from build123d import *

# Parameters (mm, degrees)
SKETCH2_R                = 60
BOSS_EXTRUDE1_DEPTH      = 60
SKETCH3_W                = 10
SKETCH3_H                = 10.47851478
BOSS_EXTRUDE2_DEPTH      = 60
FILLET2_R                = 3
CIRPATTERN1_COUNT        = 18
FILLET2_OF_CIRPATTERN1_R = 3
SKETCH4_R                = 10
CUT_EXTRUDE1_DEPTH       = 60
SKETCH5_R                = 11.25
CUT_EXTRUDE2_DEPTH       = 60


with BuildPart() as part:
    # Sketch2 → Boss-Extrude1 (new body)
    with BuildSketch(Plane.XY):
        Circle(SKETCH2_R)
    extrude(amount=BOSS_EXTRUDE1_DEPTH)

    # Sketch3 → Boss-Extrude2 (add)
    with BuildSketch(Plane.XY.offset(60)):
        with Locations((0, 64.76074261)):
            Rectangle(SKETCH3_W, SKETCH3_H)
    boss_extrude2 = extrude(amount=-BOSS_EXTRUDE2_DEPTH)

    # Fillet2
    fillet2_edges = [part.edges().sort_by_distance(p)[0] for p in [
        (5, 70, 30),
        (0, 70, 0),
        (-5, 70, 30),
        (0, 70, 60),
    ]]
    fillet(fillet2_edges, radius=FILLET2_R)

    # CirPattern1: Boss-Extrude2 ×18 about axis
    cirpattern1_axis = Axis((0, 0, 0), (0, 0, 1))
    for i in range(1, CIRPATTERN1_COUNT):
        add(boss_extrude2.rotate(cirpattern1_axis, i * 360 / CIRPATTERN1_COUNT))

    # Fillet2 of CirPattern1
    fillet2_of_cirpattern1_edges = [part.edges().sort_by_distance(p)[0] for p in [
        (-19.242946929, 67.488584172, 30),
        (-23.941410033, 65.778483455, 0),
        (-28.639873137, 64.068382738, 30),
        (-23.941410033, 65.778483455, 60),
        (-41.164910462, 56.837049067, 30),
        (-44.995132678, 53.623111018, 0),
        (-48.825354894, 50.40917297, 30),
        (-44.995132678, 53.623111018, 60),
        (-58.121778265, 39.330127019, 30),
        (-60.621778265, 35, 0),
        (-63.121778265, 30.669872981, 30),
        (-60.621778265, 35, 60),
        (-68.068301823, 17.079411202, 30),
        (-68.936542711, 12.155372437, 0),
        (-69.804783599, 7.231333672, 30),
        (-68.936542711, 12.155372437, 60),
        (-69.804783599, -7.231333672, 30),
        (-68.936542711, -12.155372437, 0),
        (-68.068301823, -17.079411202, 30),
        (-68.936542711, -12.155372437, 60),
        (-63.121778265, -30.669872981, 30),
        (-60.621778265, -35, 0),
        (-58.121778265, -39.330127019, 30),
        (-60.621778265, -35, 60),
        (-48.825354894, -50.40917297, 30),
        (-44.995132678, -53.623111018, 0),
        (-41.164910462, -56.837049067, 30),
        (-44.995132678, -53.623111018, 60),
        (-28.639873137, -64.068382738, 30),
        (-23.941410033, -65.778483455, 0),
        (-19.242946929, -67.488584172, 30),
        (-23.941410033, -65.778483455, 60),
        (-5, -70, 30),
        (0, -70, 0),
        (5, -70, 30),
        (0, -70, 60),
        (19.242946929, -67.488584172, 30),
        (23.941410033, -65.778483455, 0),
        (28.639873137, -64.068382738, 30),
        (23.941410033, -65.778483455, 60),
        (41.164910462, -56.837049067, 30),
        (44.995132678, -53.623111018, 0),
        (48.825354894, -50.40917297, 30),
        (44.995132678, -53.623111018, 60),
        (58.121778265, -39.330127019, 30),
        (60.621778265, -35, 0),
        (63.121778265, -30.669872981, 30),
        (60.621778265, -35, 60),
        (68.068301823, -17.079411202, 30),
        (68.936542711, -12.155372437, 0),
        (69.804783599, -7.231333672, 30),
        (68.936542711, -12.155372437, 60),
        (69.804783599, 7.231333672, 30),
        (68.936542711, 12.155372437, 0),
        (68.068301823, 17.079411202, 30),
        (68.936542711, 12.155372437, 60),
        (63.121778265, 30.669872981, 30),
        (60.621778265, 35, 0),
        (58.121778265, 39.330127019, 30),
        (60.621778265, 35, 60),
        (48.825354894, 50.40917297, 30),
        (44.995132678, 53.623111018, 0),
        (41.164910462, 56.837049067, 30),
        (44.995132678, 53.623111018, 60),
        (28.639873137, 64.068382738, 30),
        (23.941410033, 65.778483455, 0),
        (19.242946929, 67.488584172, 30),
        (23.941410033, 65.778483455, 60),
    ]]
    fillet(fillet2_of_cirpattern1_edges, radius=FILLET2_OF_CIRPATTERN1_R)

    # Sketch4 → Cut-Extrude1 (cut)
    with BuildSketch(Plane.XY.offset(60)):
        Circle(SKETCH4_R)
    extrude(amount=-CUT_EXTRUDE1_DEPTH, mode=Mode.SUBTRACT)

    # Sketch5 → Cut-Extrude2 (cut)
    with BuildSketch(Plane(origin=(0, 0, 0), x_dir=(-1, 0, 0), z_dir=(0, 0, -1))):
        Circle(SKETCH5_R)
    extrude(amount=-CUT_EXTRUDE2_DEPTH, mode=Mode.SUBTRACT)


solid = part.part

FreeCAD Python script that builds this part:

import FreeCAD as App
import Part
import Sketcher

V = App.Vector
Q = App.Units.Quantity


def edges_at(feature, points):
    """Names of the edges that pass closest to the given points."""
    edges = feature.Shape.Edges
    near = lambda p: min(range(len(edges)), key=lambda i: edges[i].distToShape(Part.Vertex(*p))[0])
    return sorted({f"Edge{near(p) + 1}" for p in points})


def add_polygon(sketch, points):
    """Adds a closed chain of lines whose ends are joined by coincident constraints."""
    first, n = sketch.GeometryCount, len(points)
    for a, b in zip(points, points[1:] + points[:1]):
        sketch.addGeometry(Part.LineSegment(App.Vector(*a, 0), App.Vector(*b, 0)), False)
    for i in range(n):
        sketch.addConstraint(Sketcher.Constraint("Coincident", first + i, 2, first + (i + 1) % n, 1))

doc = App.newDocument("Part")
body = doc.addObject("PartDesign::Body", "Body")

sketch1 = body.newObject("Sketcher::SketchObject", "Sketch")
sketch1.AttachmentSupport = (doc.getObject("XY_Plane"), [""])
sketch1.MapMode = "FlatFace"
sketch1.addGeometry(Part.Circle(V(0, 0, 0), V(0, 0, 1), 60), False)
sketch1.addConstraint(Sketcher.Constraint("Coincident", 0, 3, -1, 1))
sketch1.addConstraint(Sketcher.Constraint("Diameter", 0, Q("120 mm")))
pad1 = body.newObject("PartDesign::Pad", "Pad")
pad1.Profile = sketch1
pad1.Length = 60

sketch2 = body.newObject("Sketcher::SketchObject", "Sketch001")
sketch2.AttachmentSupport = (doc.getObject("XY_Plane"), [""])
sketch2.MapMode = "FlatFace"
sketch2.AttachmentOffset = App.Placement(V(0, 0, 60), App.Rotation())
add_polygon(sketch2, [(-5, 70), (-5, 60), (5, 60), (5, 70)])
sketch2.addConstraint(Sketcher.Constraint("Vertical", 0))
sketch2.addConstraint(Sketcher.Constraint("Horizontal", 1))
sketch2.addConstraint(Sketcher.Constraint("Vertical", 2))
sketch2.addConstraint(Sketcher.Constraint("Horizontal", 3))
sketch2.addConstraint(Sketcher.Constraint("DistanceX", 1, 1, 1, 2, Q("10 mm")))
sketch2.addConstraint(Sketcher.Constraint("DistanceX", 0, 2, -1, 1, Q("5 mm")))
sketch2.addConstraint(Sketcher.Constraint("DistanceY", -1, 1, 2, 2, Q("70 mm")))
sketch2.addConstraint(Sketcher.Constraint("DistanceY", 0, 2, 0, 1, Q("10.478515 mm")))
pad2 = body.newObject("PartDesign::Pad", "Pad001")
pad2.Profile = sketch2
pad2.Length = 60
pad2.Reversed = True
doc.recompute()

fillet = body.newObject("PartDesign::Fillet", "Fillet")
fillet.Base = (pad2, edges_at(pad2, [
    (5, 70, 30),
    (0, 70, 0),
    (-5, 70, 30),
    (0, 70, 60),
]))
fillet.Radius = 3
doc.recompute()

polarpattern = body.newObject("PartDesign::PolarPattern", "PolarPattern")
polarpattern.Originals = [pad2]
polarpattern.Axis = (doc.getObject("Z_Axis"), [""])
polarpattern.Angle = 360
polarpattern.Occurrences = 18
body.Tip = polarpattern
doc.recompute()

fillet2 = body.newObject("PartDesign::Fillet", "Fillet001")
fillet2.Base = (polarpattern, edges_at(polarpattern, [
    (-19.243, 67.489, 30),
    (-23.941, 65.778, 0),
    (-28.64, 64.068, 30),
    (-23.941, 65.778, 60),
    (-41.165, 56.837, 30),
    (-44.995, 53.623, 0),
    (-48.825, 50.409, 30),
    (-44.995, 53.623, 60),
    (-58.122, 39.33, 30),
    (-60.622, 35, 0),
    (-63.122, 30.67, 30),
    (-60.622, 35, 60),
    (-68.068, 17.079, 30),
    (-68.937, 12.155, 0),
    (-69.805, 7.231, 30),
    (-68.937, 12.155, 60),
    (-69.805, -7.231, 30),
    (-68.937, -12.155, 0),
    (-68.068, -17.079, 30),
    (-68.937, -12.155, 60),
    (-63.122, -30.67, 30),
    (-60.622, -35, 0),
    (-58.122, -39.33, 30),
    (-60.622, -35, 60),
    (-48.825, -50.409, 30),
    (-44.995, -53.623, 0),
    (-41.165, -56.837, 30),
    (-44.995, -53.623, 60),
    (-28.64, -64.068, 30),
    (-23.941, -65.778, 0),
    (-19.243, -67.489, 30),
    (-23.941, -65.778, 60),
    (-5, -70, 30),
    (0, -70, 0),
    (5, -70, 30),
    (0, -70, 60),
    (19.243, -67.489, 30),
    (23.941, -65.778, 0),
    (28.64, -64.068, 30),
    (23.941, -65.778, 60),
    (41.165, -56.837, 30),
    (44.995, -53.623, 0),
    (48.825, -50.409, 30),
    (44.995, -53.623, 60),
    (58.122, -39.33, 30),
    (60.622, -35, 0),
    (63.122, -30.67, 30),
    (60.622, -35, 60),
    (68.068, -17.079, 30),
    (68.937, -12.155, 0),
    (69.805, -7.231, 30),
    (68.937, -12.155, 60),
    (69.805, 7.231, 30),
    (68.937, 12.155, 0),
    (68.068, 17.079, 30),
    (68.937, 12.155, 60),
    (63.122, 30.67, 30),
    (60.622, 35, 0),
    (58.122, 39.33, 30),
    (60.622, 35, 60),
    (48.825, 50.409, 30),
    (44.995, 53.623, 0),
    (41.165, 56.837, 30),
    (44.995, 53.623, 60),
    (28.64, 64.068, 30),
    (23.941, 65.778, 0),
    (19.243, 67.489, 30),
    (23.941, 65.778, 60),
]))
fillet2.Radius = 3

sketch3 = body.newObject("Sketcher::SketchObject", "Sketch002")
sketch3.AttachmentSupport = (doc.getObject("XY_Plane"), [""])
sketch3.MapMode = "FlatFace"
sketch3.AttachmentOffset = App.Placement(V(0, 0, 60), App.Rotation())
sketch3.addGeometry(Part.Circle(V(0, 0, 0), V(0, 0, 1), 10), False)
sketch3.addConstraint(Sketcher.Constraint("Coincident", 0, 3, -1, 1))
sketch3.addConstraint(Sketcher.Constraint("Diameter", 0, Q("20 mm")))
pocket1 = body.newObject("PartDesign::Pocket", "Pocket")
pocket1.Profile = sketch3
pocket1.Length = 60

sketch4 = body.newObject("Sketcher::SketchObject", "Sketch003")
sketch4.AttachmentSupport = (doc.getObject("XY_Plane"), [""])
sketch4.MapMode = "FlatFace"
sketch4.addGeometry(Part.Circle(V(0, 0, 0), V(0, 0, 1), 11), False)
sketch4.addConstraint(Sketcher.Constraint("Coincident", 0, 3, -1, 1))
sketch4.addConstraint(Sketcher.Constraint("Diameter", 0, Q("22.5 mm")))
pocket2 = body.newObject("PartDesign::Pocket", "Pocket001")
pocket2.Profile = sketch4
pocket2.Length = 60
pocket2.Reversed = True

doc.recompute()
